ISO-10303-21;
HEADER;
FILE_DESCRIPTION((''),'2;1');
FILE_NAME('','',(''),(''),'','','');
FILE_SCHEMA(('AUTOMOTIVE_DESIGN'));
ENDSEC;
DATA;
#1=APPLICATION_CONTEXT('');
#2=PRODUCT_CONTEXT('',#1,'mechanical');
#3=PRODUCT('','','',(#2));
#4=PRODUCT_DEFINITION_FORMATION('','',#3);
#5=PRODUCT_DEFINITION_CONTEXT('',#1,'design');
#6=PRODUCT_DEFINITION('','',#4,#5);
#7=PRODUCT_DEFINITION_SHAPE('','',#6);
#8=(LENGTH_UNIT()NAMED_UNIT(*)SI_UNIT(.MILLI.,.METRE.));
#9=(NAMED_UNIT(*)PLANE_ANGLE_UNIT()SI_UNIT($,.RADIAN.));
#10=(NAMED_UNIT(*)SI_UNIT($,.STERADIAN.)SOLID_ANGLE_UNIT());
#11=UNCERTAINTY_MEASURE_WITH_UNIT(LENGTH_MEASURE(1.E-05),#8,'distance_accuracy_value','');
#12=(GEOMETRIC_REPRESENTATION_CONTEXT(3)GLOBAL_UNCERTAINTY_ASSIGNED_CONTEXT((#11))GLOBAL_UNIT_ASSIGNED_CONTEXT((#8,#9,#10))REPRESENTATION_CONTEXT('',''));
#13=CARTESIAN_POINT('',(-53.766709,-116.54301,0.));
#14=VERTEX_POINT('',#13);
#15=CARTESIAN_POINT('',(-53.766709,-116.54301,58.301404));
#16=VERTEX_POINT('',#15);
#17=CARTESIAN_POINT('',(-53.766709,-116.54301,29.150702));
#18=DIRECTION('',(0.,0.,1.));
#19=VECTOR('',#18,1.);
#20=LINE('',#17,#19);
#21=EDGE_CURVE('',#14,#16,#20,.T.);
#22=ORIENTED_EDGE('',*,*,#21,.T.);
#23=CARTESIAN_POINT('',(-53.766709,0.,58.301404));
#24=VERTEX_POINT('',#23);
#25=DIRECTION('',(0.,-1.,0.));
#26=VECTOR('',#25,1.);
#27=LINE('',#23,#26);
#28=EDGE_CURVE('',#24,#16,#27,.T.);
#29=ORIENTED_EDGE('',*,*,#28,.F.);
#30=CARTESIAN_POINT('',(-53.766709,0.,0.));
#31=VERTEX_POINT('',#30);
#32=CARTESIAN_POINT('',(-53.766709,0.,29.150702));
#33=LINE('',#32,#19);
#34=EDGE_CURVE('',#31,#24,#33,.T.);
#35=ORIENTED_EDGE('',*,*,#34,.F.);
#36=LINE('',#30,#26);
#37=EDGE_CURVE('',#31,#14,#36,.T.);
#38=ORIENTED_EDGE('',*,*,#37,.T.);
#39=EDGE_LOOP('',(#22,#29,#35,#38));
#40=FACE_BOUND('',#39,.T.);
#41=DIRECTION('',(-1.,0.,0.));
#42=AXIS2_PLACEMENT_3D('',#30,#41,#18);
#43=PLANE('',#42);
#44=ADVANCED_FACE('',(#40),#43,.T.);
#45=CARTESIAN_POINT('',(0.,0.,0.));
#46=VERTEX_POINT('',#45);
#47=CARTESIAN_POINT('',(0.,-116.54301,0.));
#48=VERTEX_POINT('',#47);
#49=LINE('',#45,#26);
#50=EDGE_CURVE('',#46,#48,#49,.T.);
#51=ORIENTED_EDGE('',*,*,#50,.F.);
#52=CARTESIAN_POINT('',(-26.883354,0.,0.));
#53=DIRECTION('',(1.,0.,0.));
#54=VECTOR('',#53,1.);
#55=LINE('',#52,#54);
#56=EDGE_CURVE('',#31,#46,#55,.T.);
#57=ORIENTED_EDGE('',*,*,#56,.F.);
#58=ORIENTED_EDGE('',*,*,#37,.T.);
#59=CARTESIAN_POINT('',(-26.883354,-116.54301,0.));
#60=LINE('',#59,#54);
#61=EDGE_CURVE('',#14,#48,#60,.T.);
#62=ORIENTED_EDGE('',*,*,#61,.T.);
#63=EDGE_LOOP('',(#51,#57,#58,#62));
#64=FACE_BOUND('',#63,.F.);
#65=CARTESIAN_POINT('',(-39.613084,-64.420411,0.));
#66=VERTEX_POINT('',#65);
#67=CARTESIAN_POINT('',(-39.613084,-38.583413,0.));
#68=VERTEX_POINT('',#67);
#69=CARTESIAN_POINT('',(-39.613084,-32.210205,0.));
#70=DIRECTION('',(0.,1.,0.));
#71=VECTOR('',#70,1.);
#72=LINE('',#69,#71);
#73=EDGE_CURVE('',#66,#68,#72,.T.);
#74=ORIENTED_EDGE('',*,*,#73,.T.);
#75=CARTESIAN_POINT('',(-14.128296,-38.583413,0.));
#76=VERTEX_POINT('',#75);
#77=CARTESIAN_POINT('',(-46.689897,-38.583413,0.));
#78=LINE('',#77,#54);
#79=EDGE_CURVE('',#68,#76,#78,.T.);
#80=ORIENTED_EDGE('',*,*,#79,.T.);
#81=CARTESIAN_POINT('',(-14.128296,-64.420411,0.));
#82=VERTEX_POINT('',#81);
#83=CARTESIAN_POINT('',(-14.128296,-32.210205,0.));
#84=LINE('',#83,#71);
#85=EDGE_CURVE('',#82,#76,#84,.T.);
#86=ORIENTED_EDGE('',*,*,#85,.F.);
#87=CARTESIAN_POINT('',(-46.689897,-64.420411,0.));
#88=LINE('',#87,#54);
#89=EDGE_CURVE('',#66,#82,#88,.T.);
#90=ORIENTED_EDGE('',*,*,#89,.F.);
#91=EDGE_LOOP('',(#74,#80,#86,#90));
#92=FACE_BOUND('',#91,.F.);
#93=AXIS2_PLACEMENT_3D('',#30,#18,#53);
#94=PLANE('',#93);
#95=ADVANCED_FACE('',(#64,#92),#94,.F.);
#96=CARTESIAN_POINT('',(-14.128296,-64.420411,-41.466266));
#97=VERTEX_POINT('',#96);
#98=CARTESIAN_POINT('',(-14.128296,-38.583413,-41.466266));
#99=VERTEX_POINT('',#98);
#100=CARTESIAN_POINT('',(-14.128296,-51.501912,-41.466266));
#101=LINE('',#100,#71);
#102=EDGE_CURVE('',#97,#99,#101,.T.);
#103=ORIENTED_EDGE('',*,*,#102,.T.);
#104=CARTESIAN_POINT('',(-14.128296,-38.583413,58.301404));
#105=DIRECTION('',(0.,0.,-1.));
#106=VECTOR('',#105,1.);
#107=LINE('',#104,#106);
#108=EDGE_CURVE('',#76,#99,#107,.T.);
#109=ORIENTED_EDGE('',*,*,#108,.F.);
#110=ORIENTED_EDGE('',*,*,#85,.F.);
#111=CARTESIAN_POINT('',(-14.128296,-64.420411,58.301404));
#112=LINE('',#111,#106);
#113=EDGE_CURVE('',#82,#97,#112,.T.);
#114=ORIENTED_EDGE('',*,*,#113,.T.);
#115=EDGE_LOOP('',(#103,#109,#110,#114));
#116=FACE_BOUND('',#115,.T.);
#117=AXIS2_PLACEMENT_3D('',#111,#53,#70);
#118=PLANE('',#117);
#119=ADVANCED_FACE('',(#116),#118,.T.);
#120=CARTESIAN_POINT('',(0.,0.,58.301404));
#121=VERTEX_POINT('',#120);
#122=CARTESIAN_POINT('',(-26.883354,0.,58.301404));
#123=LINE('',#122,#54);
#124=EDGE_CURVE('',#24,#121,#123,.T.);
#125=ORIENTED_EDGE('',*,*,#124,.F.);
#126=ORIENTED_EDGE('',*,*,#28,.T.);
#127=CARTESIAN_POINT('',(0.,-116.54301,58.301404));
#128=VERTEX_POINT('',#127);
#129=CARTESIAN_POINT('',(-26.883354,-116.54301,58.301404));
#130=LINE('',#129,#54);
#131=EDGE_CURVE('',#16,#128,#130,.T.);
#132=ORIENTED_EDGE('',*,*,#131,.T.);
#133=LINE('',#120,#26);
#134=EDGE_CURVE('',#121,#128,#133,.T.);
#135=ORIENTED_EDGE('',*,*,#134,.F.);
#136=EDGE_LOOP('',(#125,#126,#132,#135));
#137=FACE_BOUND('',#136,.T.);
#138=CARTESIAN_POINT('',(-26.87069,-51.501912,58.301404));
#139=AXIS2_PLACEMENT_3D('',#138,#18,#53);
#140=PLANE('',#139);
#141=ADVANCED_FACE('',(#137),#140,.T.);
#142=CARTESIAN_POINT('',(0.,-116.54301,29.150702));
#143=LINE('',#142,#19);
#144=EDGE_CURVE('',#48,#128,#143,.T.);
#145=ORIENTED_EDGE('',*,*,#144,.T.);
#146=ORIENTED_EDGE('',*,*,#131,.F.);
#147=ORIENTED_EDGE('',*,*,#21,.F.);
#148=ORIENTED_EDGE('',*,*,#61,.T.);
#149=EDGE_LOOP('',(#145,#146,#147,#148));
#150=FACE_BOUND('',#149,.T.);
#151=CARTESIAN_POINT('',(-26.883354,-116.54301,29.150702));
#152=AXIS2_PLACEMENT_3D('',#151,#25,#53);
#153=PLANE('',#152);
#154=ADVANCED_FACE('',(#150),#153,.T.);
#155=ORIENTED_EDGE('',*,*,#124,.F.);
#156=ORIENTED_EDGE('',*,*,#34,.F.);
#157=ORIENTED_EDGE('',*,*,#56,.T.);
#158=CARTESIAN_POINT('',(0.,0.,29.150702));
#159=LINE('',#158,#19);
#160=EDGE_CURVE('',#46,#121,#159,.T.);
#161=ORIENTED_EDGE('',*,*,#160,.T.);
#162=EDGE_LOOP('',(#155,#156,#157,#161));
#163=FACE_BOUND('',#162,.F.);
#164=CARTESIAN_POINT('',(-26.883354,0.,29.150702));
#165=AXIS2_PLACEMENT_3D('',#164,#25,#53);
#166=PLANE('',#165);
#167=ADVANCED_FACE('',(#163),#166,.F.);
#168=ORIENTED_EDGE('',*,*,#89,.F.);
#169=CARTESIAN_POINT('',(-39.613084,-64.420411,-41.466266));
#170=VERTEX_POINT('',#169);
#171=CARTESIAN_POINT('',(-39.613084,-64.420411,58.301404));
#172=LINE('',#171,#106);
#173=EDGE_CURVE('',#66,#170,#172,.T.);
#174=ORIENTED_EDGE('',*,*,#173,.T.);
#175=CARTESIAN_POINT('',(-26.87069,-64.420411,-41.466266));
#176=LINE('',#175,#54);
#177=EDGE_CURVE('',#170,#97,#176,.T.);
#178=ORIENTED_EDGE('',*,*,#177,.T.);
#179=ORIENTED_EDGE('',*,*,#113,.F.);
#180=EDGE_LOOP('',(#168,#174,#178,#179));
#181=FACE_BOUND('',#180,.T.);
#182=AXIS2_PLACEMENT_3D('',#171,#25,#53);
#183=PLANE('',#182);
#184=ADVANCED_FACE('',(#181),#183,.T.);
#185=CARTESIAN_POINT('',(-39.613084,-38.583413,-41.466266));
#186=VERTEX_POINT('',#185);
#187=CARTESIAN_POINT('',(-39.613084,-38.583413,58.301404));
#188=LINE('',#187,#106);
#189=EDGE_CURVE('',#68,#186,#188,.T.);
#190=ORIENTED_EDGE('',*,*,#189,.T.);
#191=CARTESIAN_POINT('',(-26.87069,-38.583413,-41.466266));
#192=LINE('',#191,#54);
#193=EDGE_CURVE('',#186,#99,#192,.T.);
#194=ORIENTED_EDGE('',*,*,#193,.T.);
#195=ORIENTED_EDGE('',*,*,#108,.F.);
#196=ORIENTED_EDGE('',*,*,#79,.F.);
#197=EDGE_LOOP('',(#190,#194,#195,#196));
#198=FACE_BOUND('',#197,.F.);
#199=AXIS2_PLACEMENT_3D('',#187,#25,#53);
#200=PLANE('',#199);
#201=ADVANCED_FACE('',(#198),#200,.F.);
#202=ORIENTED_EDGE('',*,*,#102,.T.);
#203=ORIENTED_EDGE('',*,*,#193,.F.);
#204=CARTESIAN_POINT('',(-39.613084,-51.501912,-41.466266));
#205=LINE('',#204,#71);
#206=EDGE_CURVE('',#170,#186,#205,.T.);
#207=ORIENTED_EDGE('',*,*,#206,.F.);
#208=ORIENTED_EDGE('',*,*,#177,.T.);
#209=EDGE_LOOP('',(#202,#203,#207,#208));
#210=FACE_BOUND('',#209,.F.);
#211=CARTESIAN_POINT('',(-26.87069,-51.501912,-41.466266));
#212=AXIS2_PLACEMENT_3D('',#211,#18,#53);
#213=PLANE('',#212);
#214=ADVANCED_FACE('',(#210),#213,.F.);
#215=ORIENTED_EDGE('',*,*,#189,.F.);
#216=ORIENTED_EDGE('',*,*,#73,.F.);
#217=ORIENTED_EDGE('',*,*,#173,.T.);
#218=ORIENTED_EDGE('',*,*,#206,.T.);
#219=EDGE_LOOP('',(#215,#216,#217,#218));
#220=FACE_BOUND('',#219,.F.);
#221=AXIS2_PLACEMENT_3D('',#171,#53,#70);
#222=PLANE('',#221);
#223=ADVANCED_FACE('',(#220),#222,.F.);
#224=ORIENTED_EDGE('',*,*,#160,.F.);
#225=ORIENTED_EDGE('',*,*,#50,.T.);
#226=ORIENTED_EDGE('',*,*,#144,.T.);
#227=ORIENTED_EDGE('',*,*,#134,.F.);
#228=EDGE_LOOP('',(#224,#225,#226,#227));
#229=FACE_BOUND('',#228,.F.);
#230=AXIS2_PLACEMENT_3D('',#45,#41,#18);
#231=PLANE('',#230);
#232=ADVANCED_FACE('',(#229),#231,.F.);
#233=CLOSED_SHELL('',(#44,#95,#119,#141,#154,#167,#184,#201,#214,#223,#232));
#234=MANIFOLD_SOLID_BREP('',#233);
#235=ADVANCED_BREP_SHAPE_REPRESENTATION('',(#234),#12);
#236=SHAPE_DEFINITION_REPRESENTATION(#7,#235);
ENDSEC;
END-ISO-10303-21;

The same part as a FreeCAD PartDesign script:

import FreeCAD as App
import Part
import Sketcher

doc = App.newDocument("Part")
body = doc.addObject("PartDesign::Body", "Body")

# Sketch on XZ plane
sketch1 = doc.addObject("Sketcher::SketchObject", "Sketch")
body.addObject(sketch1)
sketch1.AttachmentSupport = (doc.XZ_Plane, [""])
sketch1.MapMode = "FlatFace"
sketch1.addGeometry([
    Part.LineSegment(App.Vector(-54, 58, 0), App.Vector(-54, 0, 0)),
    Part.LineSegment(App.Vector(-54, 0, 0), App.Vector(0, 0, 0)),
    Part.LineSegment(App.Vector(0, 0, 0), App.Vector(0, 58, 0)),
    Part.LineSegment(App.Vector(0, 58, 0), App.Vector(-54, 58, 0)),
], False)
sketch1.addConstraint([
    Sketcher.Constraint("Coincident", 0, 2, 1, 1),
    Sketcher.Constraint("Coincident", 1, 2, 2, 1),
    Sketcher.Constraint("Coincident", 2, 2, 3, 1),
    Sketcher.Constraint("Coincident", 3, 2, 0, 1),
    Sketcher.Constraint("Vertical", 0),
    Sketcher.Constraint("Horizontal", 1),
    Sketcher.Constraint("Vertical", 2),
    Sketcher.Constraint("Horizontal", 3),
    Sketcher.Constraint("Coincident", 1, 2, -1, 1),
    Sketcher.Constraint("DistanceX", 1, 1, 1, 2, 53.766709),
    Sketcher.Constraint("DistanceY", 0, 2, 0, 1, 58.301404),
])
pad1 = doc.addObject("PartDesign::Pad", "Pad")
body.addObject(pad1)
pad1.Profile = sketch1
pad1.Length = 116.54301

# Sketch on XY plane
sketch2 = doc.addObject("Sketcher::SketchObject", "Sketch001")
body.addObject(sketch2)
sketch2.AttachmentSupport = (doc.XY_Plane, [""])
sketch2.MapMode = "FlatFace"
sketch2.AttachmentOffset = App.Placement(App.Vector(0, 0, 58.301404), App.Rotation())
sketch2.addGeometry([
    Part.LineSegment(App.Vector(-40, -39, 0), App.Vector(-40, -64, 0)),
    Part.LineSegment(App.Vector(-40, -64, 0), App.Vector(-14, -64, 0)),
    Part.LineSegment(App.Vector(-14, -64, 0), App.Vector(-14, -39, 0)),
    Part.LineSegment(App.Vector(-14, -39, 0), App.Vector(-40, -39, 0)),
], False)
sketch2.addConstraint([
    Sketcher.Constraint("Coincident", 0, 2, 1, 1),
    Sketcher.Constraint("Coincident", 1, 2, 2, 1),
    Sketcher.Constraint("Coincident", 2, 2, 3, 1),
    Sketcher.Constraint("Coincident", 3, 2, 0, 1),
    Sketcher.Constraint("Vertical", 0),
    Sketcher.Constraint("Horizontal", 1),
    Sketcher.Constraint("Vertical", 2),
    Sketcher.Constraint("Horizontal", 3),
    Sketcher.Constraint("DistanceX", 1, 1, 1, 2, 25.484789),
    Sketcher.Constraint("DistanceY", 0, 2, 0, 1, 25.836997),
    Sketcher.Constraint("DistanceY", 0, 2, -1, 1, 64.420411),
    Sketcher.Constraint("DistanceX", 0, 2, -1, 1, 39.613084),
])
pad2 = doc.addObject("PartDesign::Pad", "Pad001")
body.addObject(pad2)
pad2.Profile = sketch2
pad2.Length = 99.76767
pad2.Reversed = True

doc.recompute()
